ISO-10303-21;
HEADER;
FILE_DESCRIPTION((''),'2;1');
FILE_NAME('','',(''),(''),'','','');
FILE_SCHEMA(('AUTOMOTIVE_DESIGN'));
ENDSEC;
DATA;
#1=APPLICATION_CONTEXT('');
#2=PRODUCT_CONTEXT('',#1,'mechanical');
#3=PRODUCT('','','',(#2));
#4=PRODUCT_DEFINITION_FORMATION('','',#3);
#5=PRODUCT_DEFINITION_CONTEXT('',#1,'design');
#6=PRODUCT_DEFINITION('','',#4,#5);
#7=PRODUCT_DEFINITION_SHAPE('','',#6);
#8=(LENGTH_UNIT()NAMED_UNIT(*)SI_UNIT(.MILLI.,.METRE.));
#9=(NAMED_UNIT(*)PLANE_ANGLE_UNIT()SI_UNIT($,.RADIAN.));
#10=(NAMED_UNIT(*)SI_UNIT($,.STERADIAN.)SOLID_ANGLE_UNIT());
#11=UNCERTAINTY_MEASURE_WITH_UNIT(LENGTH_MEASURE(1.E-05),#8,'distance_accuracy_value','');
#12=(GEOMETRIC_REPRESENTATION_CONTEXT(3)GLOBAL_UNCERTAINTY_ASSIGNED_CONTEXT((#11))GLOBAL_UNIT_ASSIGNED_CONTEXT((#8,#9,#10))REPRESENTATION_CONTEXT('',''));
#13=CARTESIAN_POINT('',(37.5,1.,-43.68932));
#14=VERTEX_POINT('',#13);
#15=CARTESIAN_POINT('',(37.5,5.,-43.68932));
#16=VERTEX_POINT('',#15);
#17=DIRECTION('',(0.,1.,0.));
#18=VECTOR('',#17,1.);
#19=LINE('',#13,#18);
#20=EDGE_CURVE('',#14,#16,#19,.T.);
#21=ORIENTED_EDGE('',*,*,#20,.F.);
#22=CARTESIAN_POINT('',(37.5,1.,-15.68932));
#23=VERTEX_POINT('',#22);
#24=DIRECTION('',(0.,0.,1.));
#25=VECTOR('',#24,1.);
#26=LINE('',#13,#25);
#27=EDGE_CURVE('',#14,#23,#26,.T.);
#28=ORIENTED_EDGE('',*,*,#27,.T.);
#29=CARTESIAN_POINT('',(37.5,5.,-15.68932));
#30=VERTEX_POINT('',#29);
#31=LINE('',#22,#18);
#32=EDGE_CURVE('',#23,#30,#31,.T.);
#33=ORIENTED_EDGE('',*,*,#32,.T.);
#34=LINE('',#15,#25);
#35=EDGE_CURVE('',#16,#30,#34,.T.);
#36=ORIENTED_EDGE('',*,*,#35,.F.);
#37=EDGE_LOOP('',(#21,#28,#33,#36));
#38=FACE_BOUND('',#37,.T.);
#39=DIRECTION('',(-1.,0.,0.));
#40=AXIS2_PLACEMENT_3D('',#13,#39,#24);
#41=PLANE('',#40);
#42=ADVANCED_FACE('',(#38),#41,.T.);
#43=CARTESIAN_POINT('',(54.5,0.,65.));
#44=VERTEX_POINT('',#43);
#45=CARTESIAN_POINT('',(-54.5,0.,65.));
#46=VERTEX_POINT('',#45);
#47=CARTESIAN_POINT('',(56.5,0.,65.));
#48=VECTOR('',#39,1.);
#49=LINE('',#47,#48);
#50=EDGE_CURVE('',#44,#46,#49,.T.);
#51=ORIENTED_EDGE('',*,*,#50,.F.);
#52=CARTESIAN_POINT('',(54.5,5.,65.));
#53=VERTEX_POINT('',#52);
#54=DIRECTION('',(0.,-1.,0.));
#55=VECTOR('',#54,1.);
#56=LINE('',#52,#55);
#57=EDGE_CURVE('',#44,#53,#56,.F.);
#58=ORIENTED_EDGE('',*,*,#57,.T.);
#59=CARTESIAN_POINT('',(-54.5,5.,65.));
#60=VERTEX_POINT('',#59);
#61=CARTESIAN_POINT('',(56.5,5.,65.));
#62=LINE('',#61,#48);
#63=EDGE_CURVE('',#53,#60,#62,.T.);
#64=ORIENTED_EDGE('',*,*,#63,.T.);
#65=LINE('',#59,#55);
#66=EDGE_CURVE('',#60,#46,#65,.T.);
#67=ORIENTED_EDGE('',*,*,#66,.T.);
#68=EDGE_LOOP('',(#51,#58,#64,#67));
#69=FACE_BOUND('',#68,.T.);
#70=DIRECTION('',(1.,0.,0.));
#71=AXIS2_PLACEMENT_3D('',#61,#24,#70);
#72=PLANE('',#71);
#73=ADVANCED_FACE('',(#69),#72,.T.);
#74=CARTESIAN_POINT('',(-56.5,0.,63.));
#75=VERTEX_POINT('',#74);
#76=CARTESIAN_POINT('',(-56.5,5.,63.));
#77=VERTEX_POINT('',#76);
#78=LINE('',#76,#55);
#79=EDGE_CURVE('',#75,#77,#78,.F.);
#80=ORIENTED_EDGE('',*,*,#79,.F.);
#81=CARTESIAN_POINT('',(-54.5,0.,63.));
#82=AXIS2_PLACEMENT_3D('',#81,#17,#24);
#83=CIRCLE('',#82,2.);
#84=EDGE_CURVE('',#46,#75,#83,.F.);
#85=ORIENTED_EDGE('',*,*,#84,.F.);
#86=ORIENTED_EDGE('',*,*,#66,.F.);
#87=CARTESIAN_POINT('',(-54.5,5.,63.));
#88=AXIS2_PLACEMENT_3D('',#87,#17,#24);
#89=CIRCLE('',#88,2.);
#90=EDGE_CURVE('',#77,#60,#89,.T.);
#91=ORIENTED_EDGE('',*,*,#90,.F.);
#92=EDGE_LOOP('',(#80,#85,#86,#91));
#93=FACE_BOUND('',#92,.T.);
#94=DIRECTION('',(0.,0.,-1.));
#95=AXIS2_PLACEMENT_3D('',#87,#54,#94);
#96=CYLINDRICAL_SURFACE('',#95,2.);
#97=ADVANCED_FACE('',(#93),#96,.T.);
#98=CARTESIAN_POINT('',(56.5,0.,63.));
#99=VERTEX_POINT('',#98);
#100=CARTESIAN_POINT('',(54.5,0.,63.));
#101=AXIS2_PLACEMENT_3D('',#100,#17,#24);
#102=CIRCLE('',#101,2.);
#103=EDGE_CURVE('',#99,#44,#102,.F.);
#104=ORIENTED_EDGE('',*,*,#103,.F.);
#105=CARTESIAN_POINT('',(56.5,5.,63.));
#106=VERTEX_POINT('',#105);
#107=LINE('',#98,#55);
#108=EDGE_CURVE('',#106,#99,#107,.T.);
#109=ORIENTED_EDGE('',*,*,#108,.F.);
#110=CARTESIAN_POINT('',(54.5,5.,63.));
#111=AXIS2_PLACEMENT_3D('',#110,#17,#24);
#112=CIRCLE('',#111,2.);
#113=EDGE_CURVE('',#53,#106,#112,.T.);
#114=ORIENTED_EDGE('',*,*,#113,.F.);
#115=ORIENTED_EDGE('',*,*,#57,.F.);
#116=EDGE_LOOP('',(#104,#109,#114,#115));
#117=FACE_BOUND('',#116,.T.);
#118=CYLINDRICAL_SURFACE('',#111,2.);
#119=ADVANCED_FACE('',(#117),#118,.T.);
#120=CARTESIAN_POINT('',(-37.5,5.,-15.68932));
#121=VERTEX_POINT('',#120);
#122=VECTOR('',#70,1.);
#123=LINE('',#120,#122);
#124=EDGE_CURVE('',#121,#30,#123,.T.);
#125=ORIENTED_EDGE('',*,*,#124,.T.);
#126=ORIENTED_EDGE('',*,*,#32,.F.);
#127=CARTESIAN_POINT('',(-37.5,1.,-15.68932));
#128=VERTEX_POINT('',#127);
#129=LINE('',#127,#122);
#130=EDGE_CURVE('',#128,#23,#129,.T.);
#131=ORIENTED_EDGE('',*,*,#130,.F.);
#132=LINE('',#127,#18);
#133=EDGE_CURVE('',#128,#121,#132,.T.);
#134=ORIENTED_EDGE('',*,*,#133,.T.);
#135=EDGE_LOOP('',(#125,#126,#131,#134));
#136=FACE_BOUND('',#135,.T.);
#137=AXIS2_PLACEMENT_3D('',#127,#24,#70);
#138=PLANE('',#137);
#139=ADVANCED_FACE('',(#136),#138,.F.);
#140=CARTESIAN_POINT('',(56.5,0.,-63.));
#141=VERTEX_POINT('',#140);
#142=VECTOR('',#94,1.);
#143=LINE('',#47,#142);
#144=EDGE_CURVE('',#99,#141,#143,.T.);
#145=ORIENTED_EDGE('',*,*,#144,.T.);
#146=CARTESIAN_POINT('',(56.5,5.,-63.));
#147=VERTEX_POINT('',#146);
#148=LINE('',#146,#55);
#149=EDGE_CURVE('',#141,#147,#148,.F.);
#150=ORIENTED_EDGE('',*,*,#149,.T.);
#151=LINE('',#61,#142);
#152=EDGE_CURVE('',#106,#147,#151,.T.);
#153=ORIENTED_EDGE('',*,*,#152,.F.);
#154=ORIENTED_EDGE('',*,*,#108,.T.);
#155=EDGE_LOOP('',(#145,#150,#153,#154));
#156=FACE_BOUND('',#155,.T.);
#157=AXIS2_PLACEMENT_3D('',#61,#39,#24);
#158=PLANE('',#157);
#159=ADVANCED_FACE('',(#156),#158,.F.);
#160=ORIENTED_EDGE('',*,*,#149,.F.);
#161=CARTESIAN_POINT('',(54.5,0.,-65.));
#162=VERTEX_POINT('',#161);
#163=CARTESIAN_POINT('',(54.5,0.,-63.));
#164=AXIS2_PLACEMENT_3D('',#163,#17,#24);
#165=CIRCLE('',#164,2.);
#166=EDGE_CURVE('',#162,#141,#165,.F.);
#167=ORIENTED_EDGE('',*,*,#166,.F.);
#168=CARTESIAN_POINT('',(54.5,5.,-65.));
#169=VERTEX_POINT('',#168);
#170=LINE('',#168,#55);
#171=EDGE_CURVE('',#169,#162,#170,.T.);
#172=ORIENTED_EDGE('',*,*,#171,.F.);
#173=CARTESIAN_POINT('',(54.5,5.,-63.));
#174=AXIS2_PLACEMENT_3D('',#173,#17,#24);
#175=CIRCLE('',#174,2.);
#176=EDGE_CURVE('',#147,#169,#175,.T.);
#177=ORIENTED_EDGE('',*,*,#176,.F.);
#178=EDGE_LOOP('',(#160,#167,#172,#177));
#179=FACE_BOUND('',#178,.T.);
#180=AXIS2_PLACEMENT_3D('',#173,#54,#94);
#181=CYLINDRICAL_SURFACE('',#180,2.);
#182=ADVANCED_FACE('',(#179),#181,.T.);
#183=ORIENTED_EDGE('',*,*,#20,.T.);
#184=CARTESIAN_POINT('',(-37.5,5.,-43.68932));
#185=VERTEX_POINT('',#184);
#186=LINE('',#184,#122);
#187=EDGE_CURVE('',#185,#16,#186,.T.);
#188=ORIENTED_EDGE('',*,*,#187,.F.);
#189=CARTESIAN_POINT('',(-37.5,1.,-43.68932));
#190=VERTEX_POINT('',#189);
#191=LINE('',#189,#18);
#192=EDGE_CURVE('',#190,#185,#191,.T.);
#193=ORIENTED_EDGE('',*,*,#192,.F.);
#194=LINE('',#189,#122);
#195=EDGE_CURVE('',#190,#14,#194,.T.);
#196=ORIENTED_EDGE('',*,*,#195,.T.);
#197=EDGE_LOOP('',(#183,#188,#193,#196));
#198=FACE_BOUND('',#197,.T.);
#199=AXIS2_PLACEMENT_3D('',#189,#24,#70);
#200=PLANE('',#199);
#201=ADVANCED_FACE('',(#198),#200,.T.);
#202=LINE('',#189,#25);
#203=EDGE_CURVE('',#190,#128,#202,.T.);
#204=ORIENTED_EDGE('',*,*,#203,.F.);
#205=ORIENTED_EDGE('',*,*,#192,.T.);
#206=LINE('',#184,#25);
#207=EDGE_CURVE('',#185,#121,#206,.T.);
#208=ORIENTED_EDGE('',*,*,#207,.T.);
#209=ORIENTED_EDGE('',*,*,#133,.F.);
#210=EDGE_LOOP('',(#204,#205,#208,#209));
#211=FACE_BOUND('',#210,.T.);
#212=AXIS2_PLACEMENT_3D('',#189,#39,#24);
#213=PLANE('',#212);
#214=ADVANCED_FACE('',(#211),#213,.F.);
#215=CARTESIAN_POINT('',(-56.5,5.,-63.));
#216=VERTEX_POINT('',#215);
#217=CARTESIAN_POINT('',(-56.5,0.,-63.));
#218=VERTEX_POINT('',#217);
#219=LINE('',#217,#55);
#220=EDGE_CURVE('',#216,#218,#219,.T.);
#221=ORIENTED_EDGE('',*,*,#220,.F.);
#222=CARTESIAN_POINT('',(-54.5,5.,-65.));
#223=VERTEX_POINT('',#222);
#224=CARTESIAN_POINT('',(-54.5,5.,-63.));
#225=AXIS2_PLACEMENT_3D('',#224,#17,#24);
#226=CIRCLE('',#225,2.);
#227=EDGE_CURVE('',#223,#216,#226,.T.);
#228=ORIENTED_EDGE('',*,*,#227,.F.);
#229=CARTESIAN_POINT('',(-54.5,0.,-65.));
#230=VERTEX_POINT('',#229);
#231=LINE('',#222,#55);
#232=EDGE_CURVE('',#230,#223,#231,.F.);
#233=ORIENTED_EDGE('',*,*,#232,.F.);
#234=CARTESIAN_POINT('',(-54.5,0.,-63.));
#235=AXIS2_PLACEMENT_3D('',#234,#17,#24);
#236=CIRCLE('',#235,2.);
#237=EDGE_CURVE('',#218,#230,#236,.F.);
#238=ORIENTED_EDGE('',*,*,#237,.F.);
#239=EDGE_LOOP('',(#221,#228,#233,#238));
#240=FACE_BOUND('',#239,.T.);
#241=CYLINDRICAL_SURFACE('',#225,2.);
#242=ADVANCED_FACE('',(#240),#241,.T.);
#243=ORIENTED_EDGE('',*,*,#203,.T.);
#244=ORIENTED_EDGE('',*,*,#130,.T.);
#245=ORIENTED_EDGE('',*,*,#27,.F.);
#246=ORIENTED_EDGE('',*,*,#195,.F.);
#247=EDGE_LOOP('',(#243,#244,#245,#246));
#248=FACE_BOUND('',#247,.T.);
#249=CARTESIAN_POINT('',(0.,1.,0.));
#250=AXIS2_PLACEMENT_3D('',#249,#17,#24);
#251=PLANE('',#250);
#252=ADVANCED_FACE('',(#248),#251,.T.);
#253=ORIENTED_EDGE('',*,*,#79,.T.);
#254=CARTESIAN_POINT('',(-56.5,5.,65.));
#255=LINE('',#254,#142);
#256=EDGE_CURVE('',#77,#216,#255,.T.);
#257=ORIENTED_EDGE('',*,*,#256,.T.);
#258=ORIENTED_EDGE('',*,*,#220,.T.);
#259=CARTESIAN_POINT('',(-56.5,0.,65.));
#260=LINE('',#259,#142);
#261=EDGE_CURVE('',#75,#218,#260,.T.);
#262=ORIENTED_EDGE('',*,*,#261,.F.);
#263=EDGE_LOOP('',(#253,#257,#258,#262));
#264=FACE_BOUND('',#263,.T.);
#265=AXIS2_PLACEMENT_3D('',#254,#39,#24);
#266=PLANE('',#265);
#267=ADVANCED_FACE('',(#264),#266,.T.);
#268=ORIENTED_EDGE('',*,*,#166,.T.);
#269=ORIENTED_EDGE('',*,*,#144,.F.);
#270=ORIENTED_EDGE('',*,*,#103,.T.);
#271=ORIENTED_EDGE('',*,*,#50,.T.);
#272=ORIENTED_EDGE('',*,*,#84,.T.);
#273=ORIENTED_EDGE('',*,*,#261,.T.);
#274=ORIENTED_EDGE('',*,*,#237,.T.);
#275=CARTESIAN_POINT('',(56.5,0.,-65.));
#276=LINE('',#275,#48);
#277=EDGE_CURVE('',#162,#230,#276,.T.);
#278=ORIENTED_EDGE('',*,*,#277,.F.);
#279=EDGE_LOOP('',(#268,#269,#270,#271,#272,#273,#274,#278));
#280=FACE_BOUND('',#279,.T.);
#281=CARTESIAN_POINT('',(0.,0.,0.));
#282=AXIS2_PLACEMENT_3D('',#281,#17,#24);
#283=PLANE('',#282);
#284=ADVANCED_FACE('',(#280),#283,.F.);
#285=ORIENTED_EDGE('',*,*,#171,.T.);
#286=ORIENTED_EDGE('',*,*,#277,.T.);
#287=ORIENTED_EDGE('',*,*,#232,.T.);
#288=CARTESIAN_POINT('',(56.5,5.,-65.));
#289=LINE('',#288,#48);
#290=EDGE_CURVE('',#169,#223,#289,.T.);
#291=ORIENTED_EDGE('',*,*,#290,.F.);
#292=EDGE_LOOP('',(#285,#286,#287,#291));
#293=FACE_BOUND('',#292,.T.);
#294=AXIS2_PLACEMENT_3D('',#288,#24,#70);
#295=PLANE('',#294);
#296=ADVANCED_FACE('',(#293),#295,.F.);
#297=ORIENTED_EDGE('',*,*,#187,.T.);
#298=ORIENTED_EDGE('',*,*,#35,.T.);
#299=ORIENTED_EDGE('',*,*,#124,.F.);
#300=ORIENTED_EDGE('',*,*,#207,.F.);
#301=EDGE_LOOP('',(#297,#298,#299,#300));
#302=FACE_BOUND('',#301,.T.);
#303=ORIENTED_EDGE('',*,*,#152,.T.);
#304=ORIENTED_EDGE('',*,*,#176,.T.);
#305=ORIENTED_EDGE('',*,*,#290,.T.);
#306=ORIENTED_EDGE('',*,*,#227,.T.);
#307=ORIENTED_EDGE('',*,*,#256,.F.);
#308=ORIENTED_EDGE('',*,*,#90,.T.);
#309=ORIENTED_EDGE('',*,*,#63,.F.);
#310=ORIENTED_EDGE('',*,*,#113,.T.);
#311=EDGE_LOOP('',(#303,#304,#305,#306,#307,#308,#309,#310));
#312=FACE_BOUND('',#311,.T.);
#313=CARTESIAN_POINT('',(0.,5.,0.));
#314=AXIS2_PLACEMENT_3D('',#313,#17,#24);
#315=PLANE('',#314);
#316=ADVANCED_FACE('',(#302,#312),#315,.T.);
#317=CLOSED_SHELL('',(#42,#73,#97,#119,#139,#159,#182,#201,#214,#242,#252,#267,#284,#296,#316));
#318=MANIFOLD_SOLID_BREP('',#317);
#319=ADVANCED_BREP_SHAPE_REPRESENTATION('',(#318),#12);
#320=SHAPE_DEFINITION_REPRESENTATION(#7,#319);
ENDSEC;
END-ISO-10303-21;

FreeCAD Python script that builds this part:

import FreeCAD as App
import Part
import Sketcher

V = App.Vector


def edges_at(feature, points):
    """Names of the edges that pass closest to the given points."""
    edges = feature.Shape.Edges
    near = lambda p: min(range(len(edges)), key=lambda i: edges[i].distToShape(Part.Vertex(*p))[0])
    return sorted({f"Edge{near(p) + 1}" for p in points})


def add_polygon(sketch, points):
    """Adds a closed chain of lines whose ends are joined by coincident constraints."""
    first, n = sketch.GeometryCount, len(points)
    for a, b in zip(points, points[1:] + points[:1]):
        sketch.addGeometry(Part.LineSegment(App.Vector(*a, 0), App.Vector(*b, 0)), False)
    for i in range(n):
        sketch.addConstraint(Sketcher.Constraint("Coincident", first + i, 2, first + (i + 1) % n, 1))

doc = App.newDocument("Part")
body = doc.addObject("PartDesign::Body", "Body")

# Sketch on XZ plane
sketch1 = body.newObject("Sketcher::SketchObject", "Sketch")
sketch1.AttachmentSupport = (doc.getObject("XZ_Plane"), [""])
sketch1.MapMode = "FlatFace"
add_polygon(sketch1, [(-56.5, -65), (-56.5, 65), (56.5, 65), (56.5, -65)])  # lines 0-3
sketch1.addConstraint(Sketcher.Constraint("Vertical", 0))
sketch1.addConstraint(Sketcher.Constraint("Horizontal", 1))
sketch1.addConstraint(Sketcher.Constraint("Vertical", 2))
sketch1.addConstraint(Sketcher.Constraint("Horizontal", 3))
sketch1.addConstraint(Sketcher.Constraint("Symmetric", 0, 2, 2, 2, -1, 1))
sketch1.addConstraint(Sketcher.Constraint("DistanceX", 1, 1, 1, 2, 113.0))
sketch1.addConstraint(Sketcher.Constraint("DistanceY", 0, 1, 0, 2, 130.0))
pad1 = body.newObject("PartDesign::Pad", "Pad")
pad1.Profile = sketch1
pad1.Length = 5
pad1.Reversed = True
doc.recompute()

fillet = body.newObject("PartDesign::Fillet", "Fillet")
fillet.Base = (pad1, edges_at(pad1, [
    (56.5, 2.5, 65),
    (-56.5, 2.5, 65),
    (-56.5, 2.5, -65),
    (56.5, 2.5, -65),
]))
fillet.Radius = 2

# Sketch on XZ plane
sketch2 = body.newObject("Sketcher::SketchObject", "Sketch001")
sketch2.AttachmentSupport = (doc.getObject("XZ_Plane"), [""])
sketch2.MapMode = "FlatFace"
sketch2.AttachmentOffset = App.Placement(V(0, 0, -5), App.Rotation())
add_polygon(sketch2, [(-37.5, -43.68932), (-37.5, -15.68932), (37.5, -15.68932), (37.5, -43.68932)])  # lines 0-3
sketch2.addConstraint(Sketcher.Constraint("Vertical", 0))
sketch2.addConstraint(Sketcher.Constraint("Horizontal", 1))
sketch2.addConstraint(Sketcher.Constraint("Vertical", 2))
sketch2.addConstraint(Sketcher.Constraint("Horizontal", 3))
sketch2.addConstraint(Sketcher.Constraint("DistanceX", 1, 1, 1, 2, 75.0))
sketch2.addConstraint(Sketcher.Constraint("DistanceY", 0, 1, 0, 2, 28.0))
sketch2.addConstraint(Sketcher.Constraint("DistanceX", 0, 2, -1, 1, 37.5))
sketch2.addConstraint(Sketcher.Constraint("DistanceY", 0, 2, -1, 1, 15.68932))
pocket1 = body.newObject("PartDesign::Pocket", "Pocket")
pocket1.Profile = sketch2
pocket1.Length = 4
pocket1.Reversed = True

doc.recompute()
